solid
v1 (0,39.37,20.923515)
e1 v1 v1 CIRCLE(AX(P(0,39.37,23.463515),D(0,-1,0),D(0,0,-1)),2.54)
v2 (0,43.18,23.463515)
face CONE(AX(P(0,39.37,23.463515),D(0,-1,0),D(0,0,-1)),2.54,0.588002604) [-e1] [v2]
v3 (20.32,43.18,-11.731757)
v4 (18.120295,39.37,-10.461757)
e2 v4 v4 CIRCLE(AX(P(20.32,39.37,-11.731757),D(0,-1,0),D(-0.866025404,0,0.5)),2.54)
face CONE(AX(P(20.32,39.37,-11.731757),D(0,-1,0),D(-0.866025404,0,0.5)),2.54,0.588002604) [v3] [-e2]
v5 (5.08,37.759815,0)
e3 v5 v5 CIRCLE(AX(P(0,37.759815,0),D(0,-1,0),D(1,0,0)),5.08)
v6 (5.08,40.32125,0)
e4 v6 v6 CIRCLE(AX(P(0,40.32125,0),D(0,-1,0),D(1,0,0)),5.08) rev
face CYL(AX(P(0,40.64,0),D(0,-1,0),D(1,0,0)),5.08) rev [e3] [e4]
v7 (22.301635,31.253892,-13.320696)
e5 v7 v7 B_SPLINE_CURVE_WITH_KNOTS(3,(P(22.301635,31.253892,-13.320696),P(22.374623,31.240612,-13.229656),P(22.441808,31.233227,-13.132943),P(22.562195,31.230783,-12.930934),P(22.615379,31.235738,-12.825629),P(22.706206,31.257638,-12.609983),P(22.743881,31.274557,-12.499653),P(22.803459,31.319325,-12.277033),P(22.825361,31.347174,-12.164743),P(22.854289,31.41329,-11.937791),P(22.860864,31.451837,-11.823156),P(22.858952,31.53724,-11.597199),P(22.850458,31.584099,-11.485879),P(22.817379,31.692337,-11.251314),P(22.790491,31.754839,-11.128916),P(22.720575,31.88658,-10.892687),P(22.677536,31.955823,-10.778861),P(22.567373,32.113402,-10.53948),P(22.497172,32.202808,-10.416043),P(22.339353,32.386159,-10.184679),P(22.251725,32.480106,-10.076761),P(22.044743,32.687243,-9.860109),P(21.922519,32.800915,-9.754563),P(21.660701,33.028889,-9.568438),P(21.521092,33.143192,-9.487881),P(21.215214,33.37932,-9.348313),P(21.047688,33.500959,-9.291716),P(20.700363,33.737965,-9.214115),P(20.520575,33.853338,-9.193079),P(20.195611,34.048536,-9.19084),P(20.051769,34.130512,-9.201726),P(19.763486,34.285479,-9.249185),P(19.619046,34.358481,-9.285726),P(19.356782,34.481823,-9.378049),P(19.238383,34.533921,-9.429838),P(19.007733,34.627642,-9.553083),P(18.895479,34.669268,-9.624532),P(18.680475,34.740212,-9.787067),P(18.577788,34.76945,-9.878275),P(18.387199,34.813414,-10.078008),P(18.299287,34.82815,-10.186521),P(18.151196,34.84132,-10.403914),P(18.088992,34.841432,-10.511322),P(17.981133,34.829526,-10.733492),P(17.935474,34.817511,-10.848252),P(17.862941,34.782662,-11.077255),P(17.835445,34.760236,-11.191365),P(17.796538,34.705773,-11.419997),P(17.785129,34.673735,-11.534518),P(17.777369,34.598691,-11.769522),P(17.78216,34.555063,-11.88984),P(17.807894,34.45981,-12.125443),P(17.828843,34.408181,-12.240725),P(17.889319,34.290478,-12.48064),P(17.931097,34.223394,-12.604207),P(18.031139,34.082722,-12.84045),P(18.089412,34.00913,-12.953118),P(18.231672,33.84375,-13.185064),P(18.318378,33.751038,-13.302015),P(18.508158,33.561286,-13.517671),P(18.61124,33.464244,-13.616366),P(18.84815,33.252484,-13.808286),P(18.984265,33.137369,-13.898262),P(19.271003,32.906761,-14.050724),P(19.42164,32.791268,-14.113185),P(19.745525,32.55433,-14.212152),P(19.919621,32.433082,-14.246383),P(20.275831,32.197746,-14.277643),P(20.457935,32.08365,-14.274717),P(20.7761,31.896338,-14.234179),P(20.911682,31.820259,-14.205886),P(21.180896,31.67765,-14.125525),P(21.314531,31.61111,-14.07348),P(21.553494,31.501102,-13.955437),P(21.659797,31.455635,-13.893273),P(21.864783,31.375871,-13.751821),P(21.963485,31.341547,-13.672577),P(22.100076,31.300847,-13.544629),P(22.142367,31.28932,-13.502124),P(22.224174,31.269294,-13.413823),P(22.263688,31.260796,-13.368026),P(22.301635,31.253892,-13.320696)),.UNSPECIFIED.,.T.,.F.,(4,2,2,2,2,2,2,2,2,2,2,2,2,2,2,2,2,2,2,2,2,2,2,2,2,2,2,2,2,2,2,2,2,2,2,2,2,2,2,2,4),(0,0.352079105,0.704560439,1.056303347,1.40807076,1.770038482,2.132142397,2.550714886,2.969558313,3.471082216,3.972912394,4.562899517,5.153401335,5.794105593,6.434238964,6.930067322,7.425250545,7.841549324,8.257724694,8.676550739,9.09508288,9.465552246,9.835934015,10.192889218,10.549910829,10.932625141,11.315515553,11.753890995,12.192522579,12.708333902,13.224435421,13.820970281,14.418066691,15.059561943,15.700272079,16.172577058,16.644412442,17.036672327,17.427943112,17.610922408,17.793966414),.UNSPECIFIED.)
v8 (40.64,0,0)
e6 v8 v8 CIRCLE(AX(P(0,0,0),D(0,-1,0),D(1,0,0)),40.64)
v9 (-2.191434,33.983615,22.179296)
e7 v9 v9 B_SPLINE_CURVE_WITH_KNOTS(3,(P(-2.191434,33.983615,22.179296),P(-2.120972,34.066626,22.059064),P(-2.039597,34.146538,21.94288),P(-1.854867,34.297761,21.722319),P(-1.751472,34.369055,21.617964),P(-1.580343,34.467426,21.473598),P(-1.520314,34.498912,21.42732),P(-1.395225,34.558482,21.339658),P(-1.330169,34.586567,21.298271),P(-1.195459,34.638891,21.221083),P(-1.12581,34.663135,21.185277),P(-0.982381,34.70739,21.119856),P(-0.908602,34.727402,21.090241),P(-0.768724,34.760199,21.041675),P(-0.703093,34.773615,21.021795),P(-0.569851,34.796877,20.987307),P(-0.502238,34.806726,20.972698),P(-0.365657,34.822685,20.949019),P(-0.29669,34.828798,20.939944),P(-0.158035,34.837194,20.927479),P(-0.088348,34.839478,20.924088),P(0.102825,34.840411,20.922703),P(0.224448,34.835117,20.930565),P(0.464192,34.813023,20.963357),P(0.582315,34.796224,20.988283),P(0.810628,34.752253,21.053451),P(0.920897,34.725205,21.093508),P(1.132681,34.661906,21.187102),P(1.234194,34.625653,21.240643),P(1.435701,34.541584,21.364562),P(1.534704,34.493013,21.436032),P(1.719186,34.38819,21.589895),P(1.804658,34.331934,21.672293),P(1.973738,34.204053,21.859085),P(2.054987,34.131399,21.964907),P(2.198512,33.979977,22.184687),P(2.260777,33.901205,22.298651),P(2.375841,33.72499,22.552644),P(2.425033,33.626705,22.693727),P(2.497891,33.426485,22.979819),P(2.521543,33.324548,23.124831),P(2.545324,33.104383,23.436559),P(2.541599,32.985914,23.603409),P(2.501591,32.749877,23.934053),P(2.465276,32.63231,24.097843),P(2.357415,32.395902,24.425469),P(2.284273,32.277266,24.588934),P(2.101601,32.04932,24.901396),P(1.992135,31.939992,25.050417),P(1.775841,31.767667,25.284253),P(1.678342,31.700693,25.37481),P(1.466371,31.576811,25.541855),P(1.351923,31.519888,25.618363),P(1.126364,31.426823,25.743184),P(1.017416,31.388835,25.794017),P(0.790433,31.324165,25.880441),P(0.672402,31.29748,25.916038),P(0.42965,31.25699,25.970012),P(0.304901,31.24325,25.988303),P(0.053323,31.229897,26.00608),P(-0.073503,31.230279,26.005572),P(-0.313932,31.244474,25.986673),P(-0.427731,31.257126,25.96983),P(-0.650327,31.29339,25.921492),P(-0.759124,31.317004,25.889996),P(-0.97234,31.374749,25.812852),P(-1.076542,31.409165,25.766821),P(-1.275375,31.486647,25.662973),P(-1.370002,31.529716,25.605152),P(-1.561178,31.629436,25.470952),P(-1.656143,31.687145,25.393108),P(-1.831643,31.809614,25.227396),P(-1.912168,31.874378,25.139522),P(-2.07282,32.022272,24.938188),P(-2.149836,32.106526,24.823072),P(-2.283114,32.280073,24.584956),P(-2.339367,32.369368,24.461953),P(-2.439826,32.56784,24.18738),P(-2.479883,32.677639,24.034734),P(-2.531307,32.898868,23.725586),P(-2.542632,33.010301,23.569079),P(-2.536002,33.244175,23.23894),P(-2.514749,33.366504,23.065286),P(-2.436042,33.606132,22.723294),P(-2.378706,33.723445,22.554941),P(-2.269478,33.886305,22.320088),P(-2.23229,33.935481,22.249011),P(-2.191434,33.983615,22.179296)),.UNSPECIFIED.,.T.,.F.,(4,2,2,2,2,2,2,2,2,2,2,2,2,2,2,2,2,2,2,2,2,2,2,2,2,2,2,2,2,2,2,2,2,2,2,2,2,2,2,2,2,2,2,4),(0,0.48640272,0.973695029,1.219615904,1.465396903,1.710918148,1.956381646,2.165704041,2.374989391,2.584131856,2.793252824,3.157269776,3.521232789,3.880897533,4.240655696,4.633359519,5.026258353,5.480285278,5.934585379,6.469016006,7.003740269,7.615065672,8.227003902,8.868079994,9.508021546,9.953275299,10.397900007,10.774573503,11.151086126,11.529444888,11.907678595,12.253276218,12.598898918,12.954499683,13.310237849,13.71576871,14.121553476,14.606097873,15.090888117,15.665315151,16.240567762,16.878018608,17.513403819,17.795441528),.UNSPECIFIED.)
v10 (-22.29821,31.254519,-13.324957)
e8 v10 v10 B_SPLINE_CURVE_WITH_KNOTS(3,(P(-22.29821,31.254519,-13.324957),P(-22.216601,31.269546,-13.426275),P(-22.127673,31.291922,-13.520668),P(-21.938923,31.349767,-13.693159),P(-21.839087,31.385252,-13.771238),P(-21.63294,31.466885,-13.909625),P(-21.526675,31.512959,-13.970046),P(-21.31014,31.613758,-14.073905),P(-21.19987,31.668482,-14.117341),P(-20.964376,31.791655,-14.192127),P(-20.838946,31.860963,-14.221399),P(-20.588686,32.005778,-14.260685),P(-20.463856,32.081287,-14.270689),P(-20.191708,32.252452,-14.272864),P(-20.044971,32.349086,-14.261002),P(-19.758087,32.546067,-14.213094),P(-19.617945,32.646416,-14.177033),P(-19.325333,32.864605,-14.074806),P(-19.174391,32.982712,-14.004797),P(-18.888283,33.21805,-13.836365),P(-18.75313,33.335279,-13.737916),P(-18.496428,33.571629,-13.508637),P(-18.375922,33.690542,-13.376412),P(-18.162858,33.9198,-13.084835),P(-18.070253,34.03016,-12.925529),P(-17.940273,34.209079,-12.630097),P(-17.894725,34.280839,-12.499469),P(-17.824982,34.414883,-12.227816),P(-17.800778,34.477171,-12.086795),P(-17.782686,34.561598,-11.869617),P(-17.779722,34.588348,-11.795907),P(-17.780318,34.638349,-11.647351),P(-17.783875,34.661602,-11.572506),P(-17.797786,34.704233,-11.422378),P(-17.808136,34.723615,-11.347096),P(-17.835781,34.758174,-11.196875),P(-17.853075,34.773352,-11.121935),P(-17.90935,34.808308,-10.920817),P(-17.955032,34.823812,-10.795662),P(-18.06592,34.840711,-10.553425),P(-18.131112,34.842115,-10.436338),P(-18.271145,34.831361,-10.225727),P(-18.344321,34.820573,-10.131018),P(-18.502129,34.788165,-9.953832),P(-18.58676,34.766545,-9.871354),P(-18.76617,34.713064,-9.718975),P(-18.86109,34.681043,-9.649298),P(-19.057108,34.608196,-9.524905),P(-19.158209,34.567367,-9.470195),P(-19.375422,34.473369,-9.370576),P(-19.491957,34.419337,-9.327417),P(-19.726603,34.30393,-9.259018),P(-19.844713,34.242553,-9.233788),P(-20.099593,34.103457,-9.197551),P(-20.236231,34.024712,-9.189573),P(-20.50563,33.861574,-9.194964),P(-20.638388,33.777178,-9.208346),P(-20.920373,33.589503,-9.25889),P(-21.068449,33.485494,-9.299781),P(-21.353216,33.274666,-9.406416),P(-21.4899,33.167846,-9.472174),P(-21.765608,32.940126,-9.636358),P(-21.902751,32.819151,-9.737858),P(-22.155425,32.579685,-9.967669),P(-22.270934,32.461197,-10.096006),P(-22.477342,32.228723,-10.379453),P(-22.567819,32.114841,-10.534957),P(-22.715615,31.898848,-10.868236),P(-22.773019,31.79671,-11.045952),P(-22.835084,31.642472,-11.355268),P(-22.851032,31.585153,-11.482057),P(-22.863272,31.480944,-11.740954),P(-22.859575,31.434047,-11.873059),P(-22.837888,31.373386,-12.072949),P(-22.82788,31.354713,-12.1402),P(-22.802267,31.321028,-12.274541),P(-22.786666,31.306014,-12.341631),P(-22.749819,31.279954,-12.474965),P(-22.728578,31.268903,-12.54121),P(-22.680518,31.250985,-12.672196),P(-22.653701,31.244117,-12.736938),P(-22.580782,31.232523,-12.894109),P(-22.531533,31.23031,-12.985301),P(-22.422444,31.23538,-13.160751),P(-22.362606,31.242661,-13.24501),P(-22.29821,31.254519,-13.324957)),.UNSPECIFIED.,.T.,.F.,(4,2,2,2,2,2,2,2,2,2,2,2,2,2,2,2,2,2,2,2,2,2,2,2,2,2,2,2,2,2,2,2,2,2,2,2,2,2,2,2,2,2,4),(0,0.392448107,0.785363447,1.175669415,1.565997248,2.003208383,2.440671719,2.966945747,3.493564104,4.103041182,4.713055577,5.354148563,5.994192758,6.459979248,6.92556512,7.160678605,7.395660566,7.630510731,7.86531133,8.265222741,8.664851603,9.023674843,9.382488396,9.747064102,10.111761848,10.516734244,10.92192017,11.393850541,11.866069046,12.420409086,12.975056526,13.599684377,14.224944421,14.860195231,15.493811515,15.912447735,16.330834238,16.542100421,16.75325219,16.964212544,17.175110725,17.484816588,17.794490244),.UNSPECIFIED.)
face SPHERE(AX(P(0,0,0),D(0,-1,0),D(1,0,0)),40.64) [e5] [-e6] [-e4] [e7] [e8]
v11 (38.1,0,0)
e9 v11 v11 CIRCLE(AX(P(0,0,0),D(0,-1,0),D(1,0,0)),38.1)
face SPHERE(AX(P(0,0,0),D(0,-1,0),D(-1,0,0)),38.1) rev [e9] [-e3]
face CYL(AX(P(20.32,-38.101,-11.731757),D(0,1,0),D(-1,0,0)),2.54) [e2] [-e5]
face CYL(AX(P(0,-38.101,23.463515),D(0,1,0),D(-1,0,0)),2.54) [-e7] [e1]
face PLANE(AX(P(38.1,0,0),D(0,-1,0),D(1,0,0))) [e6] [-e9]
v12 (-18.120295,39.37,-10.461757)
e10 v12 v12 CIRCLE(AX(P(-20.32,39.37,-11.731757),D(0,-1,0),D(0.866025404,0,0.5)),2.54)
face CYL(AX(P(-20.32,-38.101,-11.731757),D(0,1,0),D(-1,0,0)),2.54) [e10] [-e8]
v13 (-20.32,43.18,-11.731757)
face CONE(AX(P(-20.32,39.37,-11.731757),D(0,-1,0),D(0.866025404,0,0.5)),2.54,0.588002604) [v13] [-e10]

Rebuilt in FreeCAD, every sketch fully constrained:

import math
import FreeCAD as App
import Part
import Sketcher

V = App.Vector
Q = App.Units.Quantity

doc = App.newDocument("Part")
body = doc.addObject("PartDesign::Body", "Body")

# Sketch on XY plane
sketch1 = body.newObject("Sketcher::SketchObject", "Sketch")
sketch1.AttachmentSupport = (doc.getObject("XY_Plane"), [""])
sketch1.MapMode = "FlatFace"
sketch1.addGeometry(Part.LineSegment(V(38.1, 0, 0), V(40.6, 0, 0)), False)
sketch1.addGeometry(Part.ArcOfCircle(Part.Circle(V(0, 0, 0), V(0, 0, 1), 40.6), math.radians(0), math.radians(90)), False)
sketch1.addGeometry(Part.LineSegment(V(0, 40.6, 0), V(0, 38.1, 0)), False)
sketch1.addGeometry(Part.ArcOfCircle(Part.Circle(V(0, 0, 0), V(0, 0, 1), 38.1), math.radians(0), math.radians(90)), False)
sketch1.addConstraint(Sketcher.Constraint("Coincident", 0, 2, 1, 1))
sketch1.addConstraint(Sketcher.Constraint("Coincident", 1, 2, 2, 1))
sketch1.addConstraint(Sketcher.Constraint("Coincident", 2, 2, 3, 2))
sketch1.addConstraint(Sketcher.Constraint("Coincident", 3, 1, 0, 1))
sketch1.addConstraint(Sketcher.Constraint("Horizontal", 0))
sketch1.addConstraint(Sketcher.Constraint("Vertical", 2))
sketch1.addConstraint(Sketcher.Constraint("Coincident", 1, 3, -1, 1))
sketch1.addConstraint(Sketcher.Constraint("Coincident", 3, 3, -1, 1))
sketch1.addConstraint(Sketcher.Constraint("PointOnObject", 0, 2, -1))
sketch1.addConstraint(Sketcher.Constraint("PointOnObject", 1, 2, -2))
sketch1.addConstraint(Sketcher.Constraint("Radius", 1, Q("1.6 in")))
sketch1.addConstraint(Sketcher.Constraint("Radius", 3, Q("1.5 in")))
revolution = body.newObject("PartDesign::Revolution", "Revolution")
revolution.Profile = sketch1
revolution.ReferenceAxis = (sketch1, ["V_Axis"])
revolution.Angle = 360

# Sketch on XZ plane
sketch2 = body.newObject("Sketcher::SketchObject", "Sketch001")
sketch2.AttachmentSupport = (doc.getObject("XZ_Plane"), [""])
sketch2.MapMode = "FlatFace"
sketch2.AttachmentOffset = App.Placement(V(0, 0, -1.55 * 25.4), App.Rotation())
sketch2.addGeometry(Part.Circle(V(0, 23.5, 0), V(0, 0, 1), 2.5), False)
sketch2.addConstraint(Sketcher.Constraint("PointOnObject", 0, 3, -2))
sketch2.addConstraint(Sketcher.Constraint("Diameter", 0, Q("0.2 in")))
sketch2.addConstraint(Sketcher.Constraint("DistanceY", -1, 1, 0, 3, Q("23.463515 mm")))
pad1 = body.newObject("PartDesign::Pad", "Pad")
pad1.Profile = sketch2
pad1.Type = "UpToFirst"

# Sketch on XZ plane
sketch3 = body.newObject("Sketcher::SketchObject", "Sketch002")
sketch3.AttachmentSupport = (doc.getObject("XZ_Plane"), [""])
sketch3.MapMode = "FlatFace"
sketch3.AttachmentOffset = App.Placement(V(0, 0, -1.55 * 25.4), App.Rotation())
sketch3.addGeometry(Part.Circle(V(-20.3, -11.7, 0), V(0, 0, 1), 2.5), False)
sketch3.addConstraint(Sketcher.Constraint("Diameter", 0, Q("0.2 in")))
sketch3.addConstraint(Sketcher.Constraint("DistanceX", 0, 3, -1, 1, Q("0.8 in")))
sketch3.addConstraint(Sketcher.Constraint("DistanceY", 0, 3, -1, 1, Q("11.731757 mm")))
pad2 = body.newObject("PartDesign::Pad", "Pad001")
pad2.Profile = sketch3
pad2.Type = "UpToFirst"

# Sketch on XZ plane
sketch4 = body.newObject("Sketcher::SketchObject", "Sketch003")
sketch4.AttachmentSupport = (doc.getObject("XZ_Plane"), [""])
sketch4.MapMode = "FlatFace"
sketch4.AttachmentOffset = App.Placement(V(0, 0, -1.55 * 25.4), App.Rotation())
sketch4.addGeometry(Part.Circle(V(20.3, -11.7, 0), V(0, 0, 1), 2.5), False)
sketch4.addConstraint(Sketcher.Constraint("Diameter", 0, Q("0.2 in")))
sketch4.addConstraint(Sketcher.Constraint("DistanceX", -1, 1, 0, 3, Q("0.8 in")))
sketch4.addConstraint(Sketcher.Constraint("DistanceY", 0, 3, -1, 1, Q("11.731757 mm")))
pad3 = body.newObject("PartDesign::Pad", "Pad002")
pad3.Profile = sketch4
pad3.Type = "UpToFirst"

# Sketch on XZ plane
sketch5 = body.newObject("Sketcher::SketchObject", "Sketch004")
sketch5.AttachmentSupport = (doc.getObject("XZ_Plane"), [""])
sketch5.MapMode = "FlatFace"
sketch5.addGeometry(Part.Circle(V(0, 0, 0), V(0, 0, 1), 5), False)
sketch5.addConstraint(Sketcher.Constraint("Coincident", 0, 3, -1, 1))
sketch5.addConstraint(Sketcher.Constraint("Diameter", 0, Q("0.4 in")))
pocket1 = body.newObject("PartDesign::Pocket", "Pocket")
pocket1.Profile = sketch5
pocket1.Type = "ThroughAll"

# Sketch on YZ plane
sketch6 = body.newObject("Sketcher::SketchObject", "Sketch005")
sketch6.AttachmentSupport = (doc.getObject("YZ_Plane"), [""])
sketch6.MapMode = "FlatFace"
sketch6.addGeometry(Part.LineSegment(V(39.4, 20.9, 0), V(43.2, 23.5, 0)), False)
sketch6.addGeometry(Part.LineSegment(V(43.2, 23.5, 0), V(39.4, 23.5, 0)), False)
sketch6.addGeometry(Part.LineSegment(V(39.4, 23.5, 0), V(39.4, 20.9, 0)), False)
sketch6.addGeometry(Part.LineSegment(V(39.4, 23.5, 0), V(43.2, 23.5, 0)), True)  # axis
sketch6.addConstraint(Sketcher.Constraint("Coincident", 0, 2, 1, 1))
sketch6.addConstraint(Sketcher.Constraint("Coincident", 1, 2, 2, 1))
sketch6.addConstraint(Sketcher.Constraint("Coincident", 2, 2, 0, 1))
sketch6.addConstraint(Sketcher.Constraint("Horizontal", 1))
sketch6.addConstraint(Sketcher.Constraint("Vertical", 2))
sketch6.addConstraint(Sketcher.Constraint("Horizontal", 3))
sketch6.addConstraint(Sketcher.Constraint("Coincident", 3, 1, 1, 2))
sketch6.addConstraint(Sketcher.Constraint("Equal", 1, 3))
sketch6.addConstraint(Sketcher.Constraint("DistanceY", 2, 2, 2, 1, Q("0.1 in")))
sketch6.addConstraint(Sketcher.Constraint("DistanceX", 1, 2, 1, 1, Q("0.15 in")))
sketch6.addConstraint(Sketcher.Constraint("DistanceX", -1, 1, 0, 2, Q("1.7 in")))
sketch6.addConstraint(Sketcher.Constraint("DistanceY", -1, 1, 0, 2, Q("23.463515 mm")))
revolution2 = body.newObject("PartDesign::Revolution", "Revolution001")
revolution2.Profile = sketch6
revolution2.ReferenceAxis = (sketch6, ["Axis0"])
revolution2.Angle = 360
doc.recompute()

polarpattern = body.newObject("PartDesign::PolarPattern", "PolarPattern")
polarpattern.Originals = [revolution2]
polarpattern.Axis = (doc.getObject("Y_Axis"), [""])
polarpattern.Angle = 360
polarpattern.Occurrences = 3
body.Tip = polarpattern

doc.recompute()
